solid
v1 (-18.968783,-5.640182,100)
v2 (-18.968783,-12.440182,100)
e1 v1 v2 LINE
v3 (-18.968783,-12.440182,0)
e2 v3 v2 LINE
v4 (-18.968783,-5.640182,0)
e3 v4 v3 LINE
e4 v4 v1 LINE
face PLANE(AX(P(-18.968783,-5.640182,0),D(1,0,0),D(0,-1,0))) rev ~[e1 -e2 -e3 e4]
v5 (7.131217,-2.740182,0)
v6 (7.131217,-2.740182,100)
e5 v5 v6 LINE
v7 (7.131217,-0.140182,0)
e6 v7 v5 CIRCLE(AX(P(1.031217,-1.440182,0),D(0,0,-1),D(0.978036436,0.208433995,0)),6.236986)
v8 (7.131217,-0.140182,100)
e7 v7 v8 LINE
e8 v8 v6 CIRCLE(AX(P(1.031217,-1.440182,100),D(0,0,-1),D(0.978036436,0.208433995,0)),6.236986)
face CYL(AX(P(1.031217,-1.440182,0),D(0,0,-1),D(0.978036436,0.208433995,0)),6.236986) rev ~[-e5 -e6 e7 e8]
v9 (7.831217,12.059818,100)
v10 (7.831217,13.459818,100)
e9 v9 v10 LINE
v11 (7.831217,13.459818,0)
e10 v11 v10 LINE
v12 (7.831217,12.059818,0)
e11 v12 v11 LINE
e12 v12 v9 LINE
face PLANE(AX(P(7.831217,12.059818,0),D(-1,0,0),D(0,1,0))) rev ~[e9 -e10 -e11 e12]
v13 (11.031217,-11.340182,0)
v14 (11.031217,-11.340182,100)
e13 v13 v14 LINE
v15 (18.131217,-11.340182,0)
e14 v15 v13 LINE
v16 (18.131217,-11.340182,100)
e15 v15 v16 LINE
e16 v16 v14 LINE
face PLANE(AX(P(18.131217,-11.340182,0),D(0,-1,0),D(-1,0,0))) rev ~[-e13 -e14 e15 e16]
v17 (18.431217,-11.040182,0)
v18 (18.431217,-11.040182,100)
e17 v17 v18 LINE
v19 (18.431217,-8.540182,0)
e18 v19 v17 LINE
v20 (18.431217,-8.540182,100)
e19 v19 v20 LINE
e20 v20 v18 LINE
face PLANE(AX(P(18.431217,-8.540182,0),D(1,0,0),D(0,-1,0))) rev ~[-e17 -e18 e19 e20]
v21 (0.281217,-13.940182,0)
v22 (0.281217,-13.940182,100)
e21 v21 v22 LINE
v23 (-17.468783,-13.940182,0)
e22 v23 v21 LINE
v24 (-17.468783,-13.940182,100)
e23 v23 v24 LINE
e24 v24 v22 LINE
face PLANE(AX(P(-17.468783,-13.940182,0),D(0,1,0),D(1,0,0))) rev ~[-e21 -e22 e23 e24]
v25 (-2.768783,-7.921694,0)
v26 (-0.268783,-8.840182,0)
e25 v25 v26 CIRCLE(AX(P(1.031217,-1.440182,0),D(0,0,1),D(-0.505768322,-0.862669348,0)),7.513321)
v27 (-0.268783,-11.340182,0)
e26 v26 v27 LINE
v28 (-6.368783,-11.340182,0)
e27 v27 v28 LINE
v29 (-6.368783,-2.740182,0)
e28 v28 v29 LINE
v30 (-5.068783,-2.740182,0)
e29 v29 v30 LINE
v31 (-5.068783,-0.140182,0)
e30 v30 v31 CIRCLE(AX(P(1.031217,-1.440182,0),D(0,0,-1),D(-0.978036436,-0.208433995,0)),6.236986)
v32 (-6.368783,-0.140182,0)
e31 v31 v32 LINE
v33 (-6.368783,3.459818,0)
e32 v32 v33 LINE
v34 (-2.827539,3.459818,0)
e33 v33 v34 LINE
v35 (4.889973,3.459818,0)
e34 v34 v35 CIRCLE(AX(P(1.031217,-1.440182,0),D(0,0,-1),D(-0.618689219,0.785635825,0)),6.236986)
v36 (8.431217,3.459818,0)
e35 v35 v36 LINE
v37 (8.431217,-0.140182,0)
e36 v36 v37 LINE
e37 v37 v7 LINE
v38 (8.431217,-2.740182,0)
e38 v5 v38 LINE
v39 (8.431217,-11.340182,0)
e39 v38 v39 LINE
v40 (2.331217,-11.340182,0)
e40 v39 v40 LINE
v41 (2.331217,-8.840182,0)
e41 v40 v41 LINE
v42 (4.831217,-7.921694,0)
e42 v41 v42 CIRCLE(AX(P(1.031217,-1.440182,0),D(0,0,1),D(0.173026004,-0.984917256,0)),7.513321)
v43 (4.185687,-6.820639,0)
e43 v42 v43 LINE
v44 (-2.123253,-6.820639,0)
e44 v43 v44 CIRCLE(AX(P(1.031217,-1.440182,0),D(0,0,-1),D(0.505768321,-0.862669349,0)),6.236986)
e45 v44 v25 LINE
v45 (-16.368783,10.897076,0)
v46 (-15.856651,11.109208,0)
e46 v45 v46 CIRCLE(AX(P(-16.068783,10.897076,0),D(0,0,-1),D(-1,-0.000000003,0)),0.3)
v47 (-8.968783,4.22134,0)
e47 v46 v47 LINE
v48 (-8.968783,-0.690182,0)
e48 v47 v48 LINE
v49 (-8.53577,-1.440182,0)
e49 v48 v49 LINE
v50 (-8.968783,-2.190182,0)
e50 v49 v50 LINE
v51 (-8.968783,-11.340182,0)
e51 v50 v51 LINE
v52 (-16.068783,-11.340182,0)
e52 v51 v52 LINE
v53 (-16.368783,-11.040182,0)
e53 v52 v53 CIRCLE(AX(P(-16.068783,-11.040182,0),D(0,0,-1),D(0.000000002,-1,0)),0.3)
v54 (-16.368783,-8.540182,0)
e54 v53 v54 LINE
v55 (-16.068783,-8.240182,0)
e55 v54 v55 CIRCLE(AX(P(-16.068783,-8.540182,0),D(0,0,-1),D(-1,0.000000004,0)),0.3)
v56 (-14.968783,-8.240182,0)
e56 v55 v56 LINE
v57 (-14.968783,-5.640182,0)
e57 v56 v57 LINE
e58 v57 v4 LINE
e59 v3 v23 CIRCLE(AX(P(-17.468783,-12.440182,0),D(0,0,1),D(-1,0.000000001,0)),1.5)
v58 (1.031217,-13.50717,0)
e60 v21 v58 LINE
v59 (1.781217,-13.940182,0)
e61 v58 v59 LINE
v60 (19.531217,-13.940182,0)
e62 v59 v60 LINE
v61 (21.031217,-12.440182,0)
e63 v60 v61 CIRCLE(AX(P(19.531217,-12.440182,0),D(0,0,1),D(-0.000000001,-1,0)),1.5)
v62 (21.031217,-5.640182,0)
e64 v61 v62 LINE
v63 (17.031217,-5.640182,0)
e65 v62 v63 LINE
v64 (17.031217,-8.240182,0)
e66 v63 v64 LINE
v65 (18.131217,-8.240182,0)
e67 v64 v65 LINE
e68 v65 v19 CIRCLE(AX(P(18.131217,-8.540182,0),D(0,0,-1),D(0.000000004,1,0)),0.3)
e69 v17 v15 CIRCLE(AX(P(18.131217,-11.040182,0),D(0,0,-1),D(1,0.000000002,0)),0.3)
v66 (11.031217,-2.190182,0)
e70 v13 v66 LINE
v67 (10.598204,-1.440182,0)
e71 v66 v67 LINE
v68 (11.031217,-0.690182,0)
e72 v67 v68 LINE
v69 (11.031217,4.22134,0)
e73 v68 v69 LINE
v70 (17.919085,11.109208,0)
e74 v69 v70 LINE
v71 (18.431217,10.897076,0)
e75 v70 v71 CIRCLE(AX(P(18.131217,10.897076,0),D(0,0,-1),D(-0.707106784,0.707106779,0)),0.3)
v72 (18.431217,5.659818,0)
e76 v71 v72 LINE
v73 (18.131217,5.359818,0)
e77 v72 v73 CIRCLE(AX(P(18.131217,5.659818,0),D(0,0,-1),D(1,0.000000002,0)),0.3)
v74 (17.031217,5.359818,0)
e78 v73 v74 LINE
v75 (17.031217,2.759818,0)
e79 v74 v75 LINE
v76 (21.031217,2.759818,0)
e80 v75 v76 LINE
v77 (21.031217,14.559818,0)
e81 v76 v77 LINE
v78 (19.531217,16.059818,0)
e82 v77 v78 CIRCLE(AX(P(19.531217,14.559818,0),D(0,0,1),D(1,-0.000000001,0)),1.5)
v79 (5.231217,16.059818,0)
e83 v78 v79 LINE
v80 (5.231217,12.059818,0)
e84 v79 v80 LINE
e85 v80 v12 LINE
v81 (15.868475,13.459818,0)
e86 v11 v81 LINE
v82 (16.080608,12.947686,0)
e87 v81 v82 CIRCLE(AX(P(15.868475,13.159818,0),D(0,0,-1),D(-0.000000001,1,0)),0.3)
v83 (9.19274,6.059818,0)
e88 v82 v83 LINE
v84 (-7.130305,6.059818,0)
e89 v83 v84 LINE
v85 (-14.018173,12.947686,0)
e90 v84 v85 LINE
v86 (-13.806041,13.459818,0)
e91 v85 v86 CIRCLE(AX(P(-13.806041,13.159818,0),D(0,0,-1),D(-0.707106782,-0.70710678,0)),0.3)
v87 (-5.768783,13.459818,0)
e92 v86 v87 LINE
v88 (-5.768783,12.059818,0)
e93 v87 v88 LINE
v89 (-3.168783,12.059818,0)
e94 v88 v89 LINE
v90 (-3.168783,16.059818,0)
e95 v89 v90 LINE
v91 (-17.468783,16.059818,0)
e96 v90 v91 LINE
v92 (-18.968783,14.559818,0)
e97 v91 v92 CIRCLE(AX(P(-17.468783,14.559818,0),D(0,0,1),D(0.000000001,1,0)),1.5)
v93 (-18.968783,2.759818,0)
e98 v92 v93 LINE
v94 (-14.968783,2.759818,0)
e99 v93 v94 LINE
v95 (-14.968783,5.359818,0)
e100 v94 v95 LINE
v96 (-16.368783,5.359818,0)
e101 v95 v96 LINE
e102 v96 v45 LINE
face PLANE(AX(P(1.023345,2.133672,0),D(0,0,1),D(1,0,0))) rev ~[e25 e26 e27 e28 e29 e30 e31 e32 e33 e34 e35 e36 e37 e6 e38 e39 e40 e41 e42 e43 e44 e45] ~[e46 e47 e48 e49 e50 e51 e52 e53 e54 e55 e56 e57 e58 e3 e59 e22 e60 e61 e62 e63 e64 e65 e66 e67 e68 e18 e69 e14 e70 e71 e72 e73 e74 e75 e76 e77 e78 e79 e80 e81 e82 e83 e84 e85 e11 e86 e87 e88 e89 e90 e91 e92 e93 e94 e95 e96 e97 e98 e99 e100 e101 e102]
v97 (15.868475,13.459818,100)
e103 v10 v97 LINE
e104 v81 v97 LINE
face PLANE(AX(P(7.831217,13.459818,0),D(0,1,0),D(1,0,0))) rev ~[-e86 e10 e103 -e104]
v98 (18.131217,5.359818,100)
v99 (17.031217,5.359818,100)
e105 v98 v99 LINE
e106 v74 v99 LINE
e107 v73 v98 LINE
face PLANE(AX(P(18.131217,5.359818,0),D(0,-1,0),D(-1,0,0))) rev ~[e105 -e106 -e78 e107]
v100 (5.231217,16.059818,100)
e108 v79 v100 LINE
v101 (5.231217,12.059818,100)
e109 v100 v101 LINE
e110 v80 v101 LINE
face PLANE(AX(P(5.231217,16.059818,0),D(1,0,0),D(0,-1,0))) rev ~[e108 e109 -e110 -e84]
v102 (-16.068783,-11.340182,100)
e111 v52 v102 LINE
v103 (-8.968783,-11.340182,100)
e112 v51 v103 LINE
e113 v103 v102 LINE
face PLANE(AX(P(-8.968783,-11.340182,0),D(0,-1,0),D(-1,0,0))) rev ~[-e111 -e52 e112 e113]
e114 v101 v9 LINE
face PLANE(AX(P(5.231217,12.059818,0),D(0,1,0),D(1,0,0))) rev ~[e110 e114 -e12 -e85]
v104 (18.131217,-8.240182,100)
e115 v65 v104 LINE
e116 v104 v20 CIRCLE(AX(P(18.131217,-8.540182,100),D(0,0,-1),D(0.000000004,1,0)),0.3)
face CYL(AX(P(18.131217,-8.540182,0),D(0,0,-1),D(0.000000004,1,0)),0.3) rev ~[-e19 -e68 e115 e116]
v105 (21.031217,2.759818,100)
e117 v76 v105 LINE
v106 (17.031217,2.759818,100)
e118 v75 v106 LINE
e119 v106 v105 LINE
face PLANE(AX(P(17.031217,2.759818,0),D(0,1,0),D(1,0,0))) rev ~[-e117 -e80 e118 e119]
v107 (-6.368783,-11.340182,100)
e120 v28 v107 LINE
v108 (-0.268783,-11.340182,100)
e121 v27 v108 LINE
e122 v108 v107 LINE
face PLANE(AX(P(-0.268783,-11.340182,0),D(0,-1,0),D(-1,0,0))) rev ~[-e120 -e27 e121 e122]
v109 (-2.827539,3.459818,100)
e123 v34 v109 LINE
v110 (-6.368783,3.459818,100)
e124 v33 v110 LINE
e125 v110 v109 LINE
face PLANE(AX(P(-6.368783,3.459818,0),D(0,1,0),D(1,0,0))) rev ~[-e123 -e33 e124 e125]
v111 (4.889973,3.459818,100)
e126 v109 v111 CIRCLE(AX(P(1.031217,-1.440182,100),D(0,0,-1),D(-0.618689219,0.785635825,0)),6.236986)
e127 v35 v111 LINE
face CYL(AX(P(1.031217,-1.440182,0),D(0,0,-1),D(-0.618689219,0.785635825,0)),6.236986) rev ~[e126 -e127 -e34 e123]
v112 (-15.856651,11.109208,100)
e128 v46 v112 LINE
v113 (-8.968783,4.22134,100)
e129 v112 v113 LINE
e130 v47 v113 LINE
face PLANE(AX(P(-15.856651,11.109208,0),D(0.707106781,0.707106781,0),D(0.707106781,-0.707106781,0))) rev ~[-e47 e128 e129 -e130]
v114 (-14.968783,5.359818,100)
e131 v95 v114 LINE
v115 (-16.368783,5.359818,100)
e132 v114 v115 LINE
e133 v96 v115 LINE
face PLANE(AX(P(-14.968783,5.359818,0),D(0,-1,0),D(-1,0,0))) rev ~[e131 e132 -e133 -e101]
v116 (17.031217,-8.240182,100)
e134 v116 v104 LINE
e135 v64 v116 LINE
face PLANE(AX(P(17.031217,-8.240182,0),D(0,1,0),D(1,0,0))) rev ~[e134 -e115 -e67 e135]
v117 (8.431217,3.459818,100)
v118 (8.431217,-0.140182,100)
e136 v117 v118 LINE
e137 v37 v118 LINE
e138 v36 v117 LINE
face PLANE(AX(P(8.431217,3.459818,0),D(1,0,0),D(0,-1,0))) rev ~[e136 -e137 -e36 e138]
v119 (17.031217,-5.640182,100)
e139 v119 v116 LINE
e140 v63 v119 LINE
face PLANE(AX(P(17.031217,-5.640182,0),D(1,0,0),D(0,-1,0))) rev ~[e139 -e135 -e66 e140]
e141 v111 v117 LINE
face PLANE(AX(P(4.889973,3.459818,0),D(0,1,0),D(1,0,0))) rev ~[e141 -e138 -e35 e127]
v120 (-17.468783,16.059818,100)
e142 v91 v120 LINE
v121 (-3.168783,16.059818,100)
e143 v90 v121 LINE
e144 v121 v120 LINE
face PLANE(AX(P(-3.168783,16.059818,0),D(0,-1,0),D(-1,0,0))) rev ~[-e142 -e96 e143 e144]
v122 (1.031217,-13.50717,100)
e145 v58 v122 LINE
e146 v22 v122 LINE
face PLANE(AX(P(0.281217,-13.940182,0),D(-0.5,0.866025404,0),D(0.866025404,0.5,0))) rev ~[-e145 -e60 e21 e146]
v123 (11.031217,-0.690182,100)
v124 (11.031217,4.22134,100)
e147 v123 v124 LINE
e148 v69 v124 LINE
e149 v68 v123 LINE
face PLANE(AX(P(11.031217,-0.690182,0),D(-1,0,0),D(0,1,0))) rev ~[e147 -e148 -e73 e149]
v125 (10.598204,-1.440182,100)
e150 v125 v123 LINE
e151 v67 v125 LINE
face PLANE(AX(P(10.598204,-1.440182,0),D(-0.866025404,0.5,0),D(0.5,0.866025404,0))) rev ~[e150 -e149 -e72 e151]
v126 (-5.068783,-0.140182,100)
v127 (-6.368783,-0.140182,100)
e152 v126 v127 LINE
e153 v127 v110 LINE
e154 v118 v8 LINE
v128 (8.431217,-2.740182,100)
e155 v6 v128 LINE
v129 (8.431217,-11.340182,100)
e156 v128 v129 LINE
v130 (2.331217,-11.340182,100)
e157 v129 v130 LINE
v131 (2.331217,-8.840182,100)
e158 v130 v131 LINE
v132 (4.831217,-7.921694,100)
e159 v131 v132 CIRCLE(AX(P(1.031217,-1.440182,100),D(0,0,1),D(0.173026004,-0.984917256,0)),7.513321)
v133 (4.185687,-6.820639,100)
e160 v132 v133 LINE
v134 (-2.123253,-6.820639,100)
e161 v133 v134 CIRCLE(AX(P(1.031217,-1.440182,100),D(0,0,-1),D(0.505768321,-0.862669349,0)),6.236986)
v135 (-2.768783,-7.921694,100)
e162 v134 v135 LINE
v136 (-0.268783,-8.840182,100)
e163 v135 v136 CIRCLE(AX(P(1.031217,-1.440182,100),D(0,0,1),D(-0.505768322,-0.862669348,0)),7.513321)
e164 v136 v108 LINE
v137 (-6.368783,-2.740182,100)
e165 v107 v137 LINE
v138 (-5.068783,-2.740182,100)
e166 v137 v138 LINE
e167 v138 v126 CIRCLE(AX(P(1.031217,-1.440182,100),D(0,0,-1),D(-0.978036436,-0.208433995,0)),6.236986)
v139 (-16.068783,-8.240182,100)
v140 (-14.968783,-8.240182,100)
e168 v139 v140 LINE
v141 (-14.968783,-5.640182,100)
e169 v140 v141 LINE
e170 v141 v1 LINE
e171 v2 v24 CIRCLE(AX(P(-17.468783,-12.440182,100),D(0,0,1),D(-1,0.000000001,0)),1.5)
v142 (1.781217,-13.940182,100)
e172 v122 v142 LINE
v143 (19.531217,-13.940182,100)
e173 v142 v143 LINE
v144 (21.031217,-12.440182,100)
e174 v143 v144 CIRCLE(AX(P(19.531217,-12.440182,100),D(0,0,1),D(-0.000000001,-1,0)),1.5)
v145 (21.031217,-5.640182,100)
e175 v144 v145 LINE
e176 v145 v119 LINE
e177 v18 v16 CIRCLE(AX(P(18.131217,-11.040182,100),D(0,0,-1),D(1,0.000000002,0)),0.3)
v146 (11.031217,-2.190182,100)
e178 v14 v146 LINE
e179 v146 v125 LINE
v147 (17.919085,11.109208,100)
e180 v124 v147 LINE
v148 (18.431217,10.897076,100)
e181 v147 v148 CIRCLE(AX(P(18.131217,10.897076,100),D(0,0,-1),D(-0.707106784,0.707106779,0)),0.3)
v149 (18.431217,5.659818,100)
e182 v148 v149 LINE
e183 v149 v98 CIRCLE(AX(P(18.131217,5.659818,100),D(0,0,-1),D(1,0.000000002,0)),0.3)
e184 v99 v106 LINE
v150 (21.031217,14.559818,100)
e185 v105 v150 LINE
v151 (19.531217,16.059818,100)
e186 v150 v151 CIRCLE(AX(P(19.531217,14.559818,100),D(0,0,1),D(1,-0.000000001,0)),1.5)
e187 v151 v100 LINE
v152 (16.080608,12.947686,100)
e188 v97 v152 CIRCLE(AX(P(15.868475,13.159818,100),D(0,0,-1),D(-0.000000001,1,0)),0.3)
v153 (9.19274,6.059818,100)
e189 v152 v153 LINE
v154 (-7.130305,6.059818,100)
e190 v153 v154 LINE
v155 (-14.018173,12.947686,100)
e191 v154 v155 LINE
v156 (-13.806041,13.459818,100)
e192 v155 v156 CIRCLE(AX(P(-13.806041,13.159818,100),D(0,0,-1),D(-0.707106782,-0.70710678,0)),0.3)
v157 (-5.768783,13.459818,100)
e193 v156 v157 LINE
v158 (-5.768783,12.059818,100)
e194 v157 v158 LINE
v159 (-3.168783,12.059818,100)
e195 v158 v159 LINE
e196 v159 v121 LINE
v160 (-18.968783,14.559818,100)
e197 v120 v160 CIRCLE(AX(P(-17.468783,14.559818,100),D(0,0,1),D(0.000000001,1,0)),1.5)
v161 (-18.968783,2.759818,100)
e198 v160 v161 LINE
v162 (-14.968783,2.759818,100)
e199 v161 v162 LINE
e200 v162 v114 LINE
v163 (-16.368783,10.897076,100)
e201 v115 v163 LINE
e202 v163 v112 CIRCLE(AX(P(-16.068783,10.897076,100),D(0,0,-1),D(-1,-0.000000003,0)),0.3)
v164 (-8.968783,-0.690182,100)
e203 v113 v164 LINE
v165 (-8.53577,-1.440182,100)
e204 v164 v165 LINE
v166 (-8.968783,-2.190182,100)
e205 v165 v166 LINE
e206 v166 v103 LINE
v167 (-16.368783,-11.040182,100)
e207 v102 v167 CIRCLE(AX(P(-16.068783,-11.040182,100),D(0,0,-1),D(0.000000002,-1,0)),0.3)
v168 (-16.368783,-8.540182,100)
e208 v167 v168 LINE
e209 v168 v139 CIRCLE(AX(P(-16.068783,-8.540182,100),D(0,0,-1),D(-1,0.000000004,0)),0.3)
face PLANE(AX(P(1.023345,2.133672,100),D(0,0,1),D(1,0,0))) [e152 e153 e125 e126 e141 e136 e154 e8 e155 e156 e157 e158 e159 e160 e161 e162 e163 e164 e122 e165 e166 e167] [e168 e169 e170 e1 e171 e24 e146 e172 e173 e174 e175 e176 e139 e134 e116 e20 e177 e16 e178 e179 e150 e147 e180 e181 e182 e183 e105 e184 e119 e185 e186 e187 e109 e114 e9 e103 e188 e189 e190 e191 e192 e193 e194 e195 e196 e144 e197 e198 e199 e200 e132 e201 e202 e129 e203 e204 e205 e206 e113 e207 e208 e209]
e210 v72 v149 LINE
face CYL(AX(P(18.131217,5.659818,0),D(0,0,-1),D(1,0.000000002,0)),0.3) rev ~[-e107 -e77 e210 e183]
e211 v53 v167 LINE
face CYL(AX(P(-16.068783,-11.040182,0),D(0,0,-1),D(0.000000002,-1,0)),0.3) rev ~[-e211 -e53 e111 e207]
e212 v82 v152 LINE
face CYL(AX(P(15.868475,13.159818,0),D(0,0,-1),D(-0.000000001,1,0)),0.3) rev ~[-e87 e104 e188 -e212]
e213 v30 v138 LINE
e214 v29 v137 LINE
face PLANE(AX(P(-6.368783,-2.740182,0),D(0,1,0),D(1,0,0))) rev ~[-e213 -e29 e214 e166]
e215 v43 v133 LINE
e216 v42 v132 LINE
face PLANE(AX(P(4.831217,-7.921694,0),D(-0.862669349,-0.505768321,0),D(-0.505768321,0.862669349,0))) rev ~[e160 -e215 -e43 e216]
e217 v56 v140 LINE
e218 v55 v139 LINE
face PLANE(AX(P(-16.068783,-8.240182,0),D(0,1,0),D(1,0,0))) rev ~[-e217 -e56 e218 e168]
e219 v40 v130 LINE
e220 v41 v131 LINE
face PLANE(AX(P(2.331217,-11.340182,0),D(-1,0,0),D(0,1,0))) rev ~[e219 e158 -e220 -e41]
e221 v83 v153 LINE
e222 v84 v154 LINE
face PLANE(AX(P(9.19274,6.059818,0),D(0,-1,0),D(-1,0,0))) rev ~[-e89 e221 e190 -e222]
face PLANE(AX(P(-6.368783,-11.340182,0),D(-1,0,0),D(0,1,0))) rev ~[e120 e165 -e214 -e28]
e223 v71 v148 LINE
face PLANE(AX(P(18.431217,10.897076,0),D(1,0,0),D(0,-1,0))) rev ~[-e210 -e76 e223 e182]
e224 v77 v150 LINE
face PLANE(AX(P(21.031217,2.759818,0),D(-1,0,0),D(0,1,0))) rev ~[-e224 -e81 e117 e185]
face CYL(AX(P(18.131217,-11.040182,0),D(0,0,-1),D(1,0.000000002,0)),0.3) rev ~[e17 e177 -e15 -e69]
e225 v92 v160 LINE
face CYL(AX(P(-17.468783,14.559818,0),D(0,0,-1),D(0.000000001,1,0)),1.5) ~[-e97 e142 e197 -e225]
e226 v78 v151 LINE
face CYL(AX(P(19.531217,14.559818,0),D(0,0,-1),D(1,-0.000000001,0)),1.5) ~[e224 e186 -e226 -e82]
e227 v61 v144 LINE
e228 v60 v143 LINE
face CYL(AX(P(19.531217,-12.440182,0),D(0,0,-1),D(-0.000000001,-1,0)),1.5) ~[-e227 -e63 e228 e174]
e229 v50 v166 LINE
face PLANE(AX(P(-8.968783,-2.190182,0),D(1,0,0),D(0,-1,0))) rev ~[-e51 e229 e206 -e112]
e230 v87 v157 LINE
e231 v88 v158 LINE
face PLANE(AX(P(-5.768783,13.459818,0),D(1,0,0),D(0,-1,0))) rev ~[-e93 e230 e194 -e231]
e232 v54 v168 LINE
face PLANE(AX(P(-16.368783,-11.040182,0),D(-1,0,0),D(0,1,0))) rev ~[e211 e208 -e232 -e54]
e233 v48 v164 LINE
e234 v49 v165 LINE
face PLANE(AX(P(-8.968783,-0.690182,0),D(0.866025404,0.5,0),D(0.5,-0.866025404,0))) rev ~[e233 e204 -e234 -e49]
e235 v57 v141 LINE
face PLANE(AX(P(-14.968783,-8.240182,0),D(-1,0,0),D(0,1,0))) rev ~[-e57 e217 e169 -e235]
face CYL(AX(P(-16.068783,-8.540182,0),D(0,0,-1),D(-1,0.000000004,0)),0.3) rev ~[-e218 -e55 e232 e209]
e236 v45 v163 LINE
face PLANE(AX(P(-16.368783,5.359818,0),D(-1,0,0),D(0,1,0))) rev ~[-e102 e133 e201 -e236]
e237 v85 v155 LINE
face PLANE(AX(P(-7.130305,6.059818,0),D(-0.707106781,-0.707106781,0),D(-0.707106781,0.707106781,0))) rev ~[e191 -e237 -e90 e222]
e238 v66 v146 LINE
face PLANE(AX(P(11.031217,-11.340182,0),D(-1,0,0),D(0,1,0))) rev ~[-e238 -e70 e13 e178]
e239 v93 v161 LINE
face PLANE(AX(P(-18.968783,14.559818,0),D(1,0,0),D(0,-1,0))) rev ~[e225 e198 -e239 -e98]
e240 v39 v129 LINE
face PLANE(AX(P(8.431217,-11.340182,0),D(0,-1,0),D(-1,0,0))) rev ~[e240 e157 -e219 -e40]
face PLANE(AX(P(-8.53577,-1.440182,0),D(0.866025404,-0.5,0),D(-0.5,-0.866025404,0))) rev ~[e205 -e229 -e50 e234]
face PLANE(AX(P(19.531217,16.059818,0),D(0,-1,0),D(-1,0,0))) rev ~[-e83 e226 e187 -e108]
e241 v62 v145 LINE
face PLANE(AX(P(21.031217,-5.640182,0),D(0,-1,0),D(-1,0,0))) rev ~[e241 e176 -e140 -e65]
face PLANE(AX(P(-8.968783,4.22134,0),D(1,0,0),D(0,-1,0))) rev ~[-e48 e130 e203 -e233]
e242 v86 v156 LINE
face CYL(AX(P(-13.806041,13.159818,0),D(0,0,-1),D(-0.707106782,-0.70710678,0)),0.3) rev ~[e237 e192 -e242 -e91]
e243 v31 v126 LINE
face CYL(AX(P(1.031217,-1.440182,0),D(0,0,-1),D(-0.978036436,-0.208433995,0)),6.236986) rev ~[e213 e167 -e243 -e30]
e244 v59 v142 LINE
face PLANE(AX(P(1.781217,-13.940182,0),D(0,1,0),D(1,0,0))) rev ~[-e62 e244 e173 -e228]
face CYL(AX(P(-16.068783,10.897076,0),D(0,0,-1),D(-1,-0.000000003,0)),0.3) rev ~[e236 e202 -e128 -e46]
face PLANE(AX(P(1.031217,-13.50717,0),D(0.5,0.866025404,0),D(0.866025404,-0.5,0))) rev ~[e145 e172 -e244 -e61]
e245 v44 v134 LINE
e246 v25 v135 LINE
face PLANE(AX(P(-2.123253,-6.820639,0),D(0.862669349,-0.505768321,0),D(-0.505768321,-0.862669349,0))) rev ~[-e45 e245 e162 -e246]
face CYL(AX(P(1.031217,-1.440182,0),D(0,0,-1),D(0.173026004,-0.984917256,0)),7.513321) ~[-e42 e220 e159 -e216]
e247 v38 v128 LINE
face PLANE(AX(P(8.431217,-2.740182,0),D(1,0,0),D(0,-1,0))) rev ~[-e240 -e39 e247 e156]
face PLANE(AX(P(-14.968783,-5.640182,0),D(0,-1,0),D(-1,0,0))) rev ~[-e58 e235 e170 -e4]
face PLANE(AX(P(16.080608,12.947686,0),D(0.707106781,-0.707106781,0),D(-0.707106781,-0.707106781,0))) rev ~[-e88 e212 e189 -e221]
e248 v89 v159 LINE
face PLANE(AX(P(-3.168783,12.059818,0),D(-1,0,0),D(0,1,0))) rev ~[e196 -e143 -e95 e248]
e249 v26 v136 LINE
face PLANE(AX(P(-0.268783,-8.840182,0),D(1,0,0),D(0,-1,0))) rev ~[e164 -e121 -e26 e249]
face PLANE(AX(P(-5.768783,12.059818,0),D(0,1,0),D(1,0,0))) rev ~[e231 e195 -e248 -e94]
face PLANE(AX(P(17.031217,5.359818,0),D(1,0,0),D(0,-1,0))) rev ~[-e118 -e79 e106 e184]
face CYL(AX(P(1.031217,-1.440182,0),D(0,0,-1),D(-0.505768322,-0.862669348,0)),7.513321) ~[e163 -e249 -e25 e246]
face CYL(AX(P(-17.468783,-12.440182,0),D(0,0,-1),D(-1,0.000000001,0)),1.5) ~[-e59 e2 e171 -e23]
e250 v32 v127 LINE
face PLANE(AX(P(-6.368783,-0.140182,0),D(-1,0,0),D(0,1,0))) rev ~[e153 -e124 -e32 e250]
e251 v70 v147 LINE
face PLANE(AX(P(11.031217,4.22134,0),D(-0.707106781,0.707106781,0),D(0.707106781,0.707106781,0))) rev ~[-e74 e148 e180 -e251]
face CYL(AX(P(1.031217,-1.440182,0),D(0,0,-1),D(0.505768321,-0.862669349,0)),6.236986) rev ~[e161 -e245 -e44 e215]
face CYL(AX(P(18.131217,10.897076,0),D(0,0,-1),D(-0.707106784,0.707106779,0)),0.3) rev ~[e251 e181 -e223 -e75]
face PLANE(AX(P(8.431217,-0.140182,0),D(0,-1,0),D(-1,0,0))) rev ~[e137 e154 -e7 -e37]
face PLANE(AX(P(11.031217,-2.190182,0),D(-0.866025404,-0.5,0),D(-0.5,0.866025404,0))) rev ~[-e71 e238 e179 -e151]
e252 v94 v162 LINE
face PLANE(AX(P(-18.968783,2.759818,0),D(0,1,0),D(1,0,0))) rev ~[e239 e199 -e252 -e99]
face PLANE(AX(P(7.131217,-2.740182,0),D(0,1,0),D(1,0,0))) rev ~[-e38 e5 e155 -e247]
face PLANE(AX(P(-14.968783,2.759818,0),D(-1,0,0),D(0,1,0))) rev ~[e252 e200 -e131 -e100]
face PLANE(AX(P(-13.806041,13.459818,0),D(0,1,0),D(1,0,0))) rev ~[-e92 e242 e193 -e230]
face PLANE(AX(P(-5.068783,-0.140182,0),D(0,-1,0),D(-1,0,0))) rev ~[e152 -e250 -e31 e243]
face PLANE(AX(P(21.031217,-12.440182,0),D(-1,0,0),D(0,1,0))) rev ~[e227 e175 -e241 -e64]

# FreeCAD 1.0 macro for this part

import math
import FreeCAD as App
import Part
import Sketcher
from FreeCAD import Vector
Q = App.Units.Quantity

doc = App.newDocument("Part")
params = doc.addObject("Spreadsheet::Sheet", "Params")
for row, (alias, value) in enumerate([
    ("sketch1_radius", "1.5 mm"),
    ("sketch1_radius2", "0.3 mm"),
    ("sketch1_width", "4 mm"),
    ("sketch1_width2", "1.1 mm"),
    ("sketch1_width3", "7.1 mm"),
    ("pad1_length", "100 mm"),
], start=1):
    params.set(f"A{row}", alias)
    params.set(f"B{row}", "=" + value)
    params.setAlias(f"B{row}", alias)

body = doc.addObject("PartDesign::Body", "Body")

sketch1 = body.newObject("Sketcher::SketchObject", "Sketch")
sketch1.AttachmentSupport = (doc.getObject("XY_Plane"), [""])
sketch1.MapMode = "FlatFace"
sketch1.addGeometry([
    Part.LineSegment(Vector(-17.468783, -13.940182, 0), Vector(0.281217, -13.940182, 0)),
    Part.LineSegment(Vector(0.281217, -13.940182, 0), Vector(1.031217, -13.50717, 0)),
    Part.LineSegment(Vector(1.031217, -13.50717, 0), Vector(1.781217, -13.940182, 0)),
    Part.LineSegment(Vector(1.781217, -13.940182, 0), Vector(19.531217, -13.940182, 0)),
    Part.ArcOfCircle(Part.Circle(Vector(19.531217, -12.440182, 0), Vector(0, 0, 1), 1.5), math.radians(-90), math.radians(0)),
    Part.LineSegment(Vector(21.031217, -12.440182, 0), Vector(21.031217, -5.640182, 0)),
    Part.LineSegment(Vector(21.031217, -5.640182, 0), Vector(17.031217, -5.640182, 0)),
    Part.LineSegment(Vector(17.031217, -5.640182, 0), Vector(17.031217, -8.240182, 0)),
    Part.LineSegment(Vector(17.031217, -8.240182, 0), Vector(18.131217, -8.240182, 0)),
    Part.ArcOfCircle(Part.Circle(Vector(18.131217, -8.540182, 0), Vector(0, 0, 1), 0.3), math.radians(0), math.radians(90)),
    Part.LineSegment(Vector(18.431217, -8.540182, 0), Vector(18.431217, -11.040182, 0)),
    Part.ArcOfCircle(Part.Circle(Vector(18.131217, -11.040182, 0), Vector(0, 0, 1), 0.3), math.radians(-90), math.radians(0)),
    Part.LineSegment(Vector(18.131217, -11.340182, 0), Vector(11.031217, -11.340182, 0)),
    Part.LineSegment(Vector(11.031217, -11.340182, 0), Vector(11.031217, -2.190182, 0)),
    Part.LineSegment(Vector(11.031217, -2.190182, 0), Vector(10.598204, -1.440182, 0)),
    Part.LineSegment(Vector(10.598204, -1.440182, 0), Vector(11.031217, -0.690182, 0)),
    Part.LineSegment(Vector(11.031217, -0.690182, 0), Vector(11.031217, 4.22134, 0)),
    Part.LineSegment(Vector(11.031217, 4.22134, 0), Vector(17.919085, 11.109208, 0)),
    Part.ArcOfCircle(Part.Circle(Vector(18.131217, 10.897076, 0), Vector(0, 0, 1), 0.3), math.radians(0), math.radians(135)),
    Part.LineSegment(Vector(18.431217, 10.897076, 0), Vector(18.431217, 5.659818, 0)),
    Part.ArcOfCircle(Part.Circle(Vector(18.131217, 5.659818, 0), Vector(0, 0, 1), 0.3), math.radians(-90), math.radians(0)),
    Part.LineSegment(Vector(18.131217, 5.359818, 0), Vector(17.031217, 5.359818, 0)),
    Part.LineSegment(Vector(17.031217, 5.359818, 0), Vector(17.031217, 2.759818, 0)),
    Part.LineSegment(Vector(17.031217, 2.759818, 0), Vector(21.031217, 2.759818, 0)),
    Part.LineSegment(Vector(21.031217, 2.759818, 0), Vector(21.031217, 14.559818, 0)),
    Part.ArcOfCircle(Part.Circle(Vector(19.531217, 14.559818, 0), Vector(0, 0, 1), 1.5), math.radians(0), math.radians(90)),
    Part.LineSegment(Vector(19.531217, 16.059818, 0), Vector(5.231217, 16.059818, 0)),
    Part.LineSegment(Vector(5.231217, 16.059818, 0), Vector(5.231217, 12.059818, 0)),
    Part.LineSegment(Vector(5.231217, 12.059818, 0), Vector(7.831217, 12.059818, 0)),
    Part.LineSegment(Vector(7.831217, 12.059818, 0), Vector(7.831217, 13.459818, 0)),
    Part.LineSegment(Vector(7.831217, 13.459818, 0), Vector(15.868475, 13.459818, 0)),
    Part.ArcOfCircle(Part.Circle(Vector(15.868475, 13.159818, 0), Vector(0, 0, 1), 0.3), math.radians(-45), math.radians(90)),
    Part.LineSegment(Vector(16.080608, 12.947686, 0), Vector(9.19274, 6.059818, 0)),
    Part.LineSegment(Vector(9.19274, 6.059818, 0), Vector(-7.130305, 6.059818, 0)),
    Part.LineSegment(Vector(-7.130305, 6.059818, 0), Vector(-14.018173, 12.947686, 0)),
    Part.ArcOfCircle(Part.Circle(Vector(-13.806041, 13.159818, 0), Vector(0, 0, 1), 0.3), math.radians(90), math.radians(225)),
    Part.LineSegment(Vector(-13.806041, 13.459818, 0), Vector(-5.768783, 13.459818, 0)),
    Part.LineSegment(Vector(-5.768783, 13.459818, 0), Vector(-5.768783, 12.059818, 0)),
    Part.LineSegment(Vector(-5.768783, 12.059818, 0), Vector(-3.168783, 12.059818, 0)),
    Part.LineSegment(Vector(-3.168783, 12.059818, 0), Vector(-3.168783, 16.059818, 0)),
    Part.LineSegment(Vector(-3.168783, 16.059818, 0), Vector(-17.468783, 16.059818, 0)),
    Part.ArcOfCircle(Part.Circle(Vector(-17.468783, 14.559818, 0), Vector(0, 0, 1), 1.5), math.radians(90), math.radians(180)),
    Part.LineSegment(Vector(-18.968783, 14.559818, 0), Vector(-18.968783, 2.759818, 0)),
    Part.LineSegment(Vector(-18.968783, 2.759818, 0), Vector(-14.968783, 2.759818, 0)),
    Part.LineSegment(Vector(-14.968783, 2.759818, 0), Vector(-14.968783, 5.359818, 0)),
    Part.LineSegment(Vector(-14.968783, 5.359818, 0), Vector(-16.368783, 5.359818, 0)),
    Part.LineSegment(Vector(-16.368783, 5.359818, 0), Vector(-16.368783, 10.897076, 0)),
    Part.ArcOfCircle(Part.Circle(Vector(-16.068783, 10.897076, 0), Vector(0, 0, 1), 0.3), math.radians(45), math.radians(180)),
    Part.LineSegment(Vector(-15.856651, 11.109208, 0), Vector(-8.968783, 4.22134, 0)),
    Part.LineSegment(Vector(-8.968783, 4.22134, 0), Vector(-8.968783, -0.690182, 0)),
    Part.LineSegment(Vector(-8.968783, -0.690182, 0), Vector(-8.53577, -1.440182, 0)),
    Part.LineSegment(Vector(-8.53577, -1.440182, 0), Vector(-8.968783, -2.190182, 0)),
    Part.LineSegment(Vector(-8.968783, -2.190182, 0), Vector(-8.968783, -11.340182, 0)),
    Part.LineSegment(Vector(-8.968783, -11.340182, 0), Vector(-16.068783, -11.340182, 0)),
    Part.ArcOfCircle(Part.Circle(Vector(-16.068783, -11.040182, 0), Vector(0, 0, 1), 0.3), math.radians(180), math.radians(270)),
    Part.LineSegment(Vector(-16.368783, -11.040182, 0), Vector(-16.368783, -8.540182, 0)),
    Part.ArcOfCircle(Part.Circle(Vector(-16.068783, -8.540182, 0), Vector(0, 0, 1), 0.3), math.radians(90), math.radians(180)),
    Part.LineSegment(Vector(-16.068783, -8.240182, 0), Vector(-14.968783, -8.240182, 0)),
    Part.LineSegment(Vector(-14.968783, -8.240182, 0), Vector(-14.968783, -5.640182, 0)),
    Part.LineSegment(Vector(-14.968783, -5.640182, 0), Vector(-18.968783, -5.640182, 0)),
    Part.LineSegment(Vector(-18.968783, -5.640182, 0), Vector(-18.968783, -12.440182, 0)),
    Part.ArcOfCircle(Part.Circle(Vector(-17.468783, -12.440182, 0), Vector(0, 0, 1), 1.5), math.radians(180), math.radians(270)),
    Part.LineSegment(Vector(-6.368783, -0.140182, 0), Vector(-6.368783, 3.459818, 0)),
    Part.LineSegment(Vector(-6.368783, 3.459818, 0), Vector(-2.827539, 3.459818, 0)),
    Part.ArcOfCircle(Part.Circle(Vector(1.031217, -1.440182, 0), Vector(0, 0, 1), 6.236986), math.radians(51.779523), math.radians(128.220477)),
    Part.LineSegment(Vector(4.889973, 3.459818, 0), Vector(8.431217, 3.459818, 0)),
    Part.LineSegment(Vector(8.431217, 3.459818, 0), Vector(8.431217, -0.140182, 0)),
    Part.LineSegment(Vector(8.431217, -0.140182, 0), Vector(7.131217, -0.140182, 0)),
    Part.ArcOfCircle(Part.Circle(Vector(1.031217, -1.440182, 0), Vector(0, 0, 1), 6.236986), math.radians(-12.030596), math.radians(12.030596)),
    Part.LineSegment(Vector(7.131217, -2.740182, 0), Vector(8.431217, -2.740182, 0)),
    Part.LineSegment(Vector(8.431217, -2.740182, 0), Vector(8.431217, -11.340182, 0)),
    Part.LineSegment(Vector(8.431217, -11.340182, 0), Vector(2.331217, -11.340182, 0)),
    Part.LineSegment(Vector(2.331217, -11.340182, 0), Vector(2.331217, -8.840182, 0)),
    Part.ArcOfCircle(Part.Circle(Vector(1.031217, -1.440182, 0), Vector(0, 0, 1), 7.513321), math.radians(-80.036196), math.radians(-59.617631)),
    Part.LineSegment(Vector(4.831217, -7.921694, 0), Vector(4.185687, -6.820639, 0)),
    Part.ArcOfCircle(Part.Circle(Vector(1.031217, -1.440182, 0), Vector(0, 0, 1), 6.236986), math.radians(-120.382369), math.radians(-59.617631)),
    Part.LineSegment(Vector(-2.123253, -6.820639, 0), Vector(-2.768783, -7.921694, 0)),
    Part.ArcOfCircle(Part.Circle(Vector(1.031217, -1.440182, 0), Vector(0, 0, 1), 7.513321), math.radians(-120.382369), math.radians(-99.963804)),
    Part.LineSegment(Vector(-0.268783, -8.840182, 0), Vector(-0.268783, -11.340182, 0)),
    Part.LineSegment(Vector(-0.268783, -11.340182, 0), Vector(-6.368783, -11.340182, 0)),
    Part.LineSegment(Vector(-6.368783, -11.340182, 0), Vector(-6.368783, -2.740182, 0)),
    Part.LineSegment(Vector(-6.368783, -2.740182, 0), Vector(-5.068783, -2.740182, 0)),
    Part.ArcOfCircle(Part.Circle(Vector(1.031217, -1.440182, 0), Vector(0, 0, 1), 6.236986), math.radians(167.969404), math.radians(192.030596)),
    Part.LineSegment(Vector(-5.068783, -0.140182, 0), Vector(-6.368783, -0.140182, 0)),
], False)
sketch1.addConstraint([
    Sketcher.Constraint("Coincident", 0, 2, 1, 1),
    Sketcher.Constraint("Coincident", 1, 2, 2, 1),
    Sketcher.Constraint("Coincident", 2, 2, 3, 1),
    Sketcher.Constraint("Tangent", 3, 2, 4, 1),
    Sketcher.Constraint("Tangent", 4, 2, 5, 1),
    Sketcher.Constraint("Coincident", 5, 2, 6, 1),
    Sketcher.Constraint("Coincident", 6, 2, 7, 1),
    Sketcher.Constraint("Coincident", 7, 2, 8, 1),
    Sketcher.Constraint("Tangent", 8, 2, 9, 2),
    Sketcher.Constraint("Tangent", 9, 1, 10, 1),
    Sketcher.Constraint("Tangent", 10, 2, 11, 2),
    Sketcher.Constraint("Tangent", 11, 1, 12, 1),
    Sketcher.Constraint("Coincident", 12, 2, 13, 1),
    Sketcher.Constraint("Coincident", 13, 2, 14, 1),
    Sketcher.Constraint("Coincident", 14, 2, 15, 1),
    Sketcher.Constraint("Coincident", 15, 2, 16, 1),
    Sketcher.Constraint("Coincident", 16, 2, 17, 1),
    Sketcher.Constraint("Tangent", 17, 2, 18, 2),
    Sketcher.Constraint("Tangent", 18, 1, 19, 1),
    Sketcher.Constraint("Tangent", 19, 2, 20, 2),
    Sketcher.Constraint("Tangent", 20, 1, 21, 1),
    Sketcher.Constraint("Coincident", 21, 2, 22, 1),
    Sketcher.Constraint("Coincident", 22, 2, 23, 1),
    Sketcher.Constraint("Coincident", 23, 2, 24, 1),
    Sketcher.Constraint("Tangent", 24, 2, 25, 1),
    Sketcher.Constraint("Tangent", 25, 2, 26, 1),
    Sketcher.Constraint("Coincident", 26, 2, 27, 1),
    Sketcher.Constraint("Coincident", 27, 2, 28, 1),
    Sketcher.Constraint("Coincident", 28, 2, 29, 1),
    Sketcher.Constraint("Coincident", 29, 2, 30, 1),
    Sketcher.Constraint("Tangent", 30, 2, 31, 2),
    Sketcher.Constraint("Tangent", 31, 1, 32, 1),
    Sketcher.Constraint("Coincident", 32, 2, 33, 1),
    Sketcher.Constraint("Coincident", 33, 2, 34, 1),
    Sketcher.Constraint("Tangent", 34, 2, 35, 2),
    Sketcher.Constraint("Tangent", 35, 1, 36, 1),
    Sketcher.Constraint("Coincident", 36, 2, 37, 1),
    Sketcher.Constraint("Coincident", 37, 2, 38, 1),
    Sketcher.Constraint("Coincident", 38, 2, 39, 1),
    Sketcher.Constraint("Coincident", 39, 2, 40, 1),
    Sketcher.Constraint("Tangent", 40, 2, 41, 1),
    Sketcher.Constraint("Tangent", 41, 2, 42, 1),
    Sketcher.Constraint("Coincident", 42, 2, 43, 1),
    Sketcher.Constraint("Coincident", 43, 2, 44, 1),
    Sketcher.Constraint("Coincident", 44, 2, 45, 1),
    Sketcher.Constraint("Coincident", 45, 2, 46, 1),
    Sketcher.Constraint("Tangent", 46, 2, 47, 2),
    Sketcher.Constraint("Tangent", 47, 1, 48, 1),
    Sketcher.Constraint("Coincident", 48, 2, 49, 1),
    Sketcher.Constraint("Coincident", 49, 2, 50, 1),
    Sketcher.Constraint("Coincident", 50, 2, 51, 1),
    Sketcher.Constraint("Coincident", 51, 2, 52, 1),
    Sketcher.Constraint("Coincident", 52, 2, 53, 1),
    Sketcher.Constraint("Tangent", 53, 2, 54, 2),
    Sketcher.Constraint("Tangent", 54, 1, 55, 1),
    Sketcher.Constraint("Tangent", 55, 2, 56, 2),
    Sketcher.Constraint("Tangent", 56, 1, 57, 1),
    Sketcher.Constraint("Coincident", 57, 2, 58, 1),
    Sketcher.Constraint("Coincident", 58, 2, 59, 1),
    Sketcher.Constraint("Coincident", 59, 2, 60, 1),
    Sketcher.Constraint("Tangent", 60, 2, 61, 1),
    Sketcher.Constraint("Tangent", 61, 2, 0, 1),
    Sketcher.Constraint("Coincident", 62, 2, 63, 1),
    Sketcher.Constraint("Coincident", 63, 2, 64, 2),
    Sketcher.Constraint("Coincident", 64, 1, 65, 1),
    Sketcher.Constraint("Coincident", 65, 2, 66, 1),
    Sketcher.Constraint("Coincident", 66, 2, 67, 1),
    Sketcher.Constraint("Coincident", 67, 2, 68, 2),
    Sketcher.Constraint("Coincident", 68, 1, 69, 1),
    Sketcher.Constraint("Coincident", 69, 2, 70, 1),
    Sketcher.Constraint("Coincident", 70, 2, 71, 1),
    Sketcher.Constraint("Coincident", 71, 2, 72, 1),
    Sketcher.Constraint("Coincident", 72, 2, 73, 1),
    Sketcher.Constraint("Coincident", 73, 2, 74, 1),
    Sketcher.Constraint("Coincident", 74, 2, 75, 2),
    Sketcher.Constraint("Coincident", 75, 1, 76, 1),
    Sketcher.Constraint("Coincident", 76, 2, 77, 1),
    Sketcher.Constraint("Coincident", 77, 2, 78, 1),
    Sketcher.Constraint("Coincident", 78, 2, 79, 1),
    Sketcher.Constraint("Coincident", 79, 2, 80, 1),
    Sketcher.Constraint("Coincident", 80, 2, 81, 1),
    Sketcher.Constraint("Coincident", 81, 2, 82, 2),
    Sketcher.Constraint("Coincident", 82, 1, 83, 1),
    Sketcher.Constraint("Coincident", 83, 2, 62, 1),
    Sketcher.Constraint("Horizontal", 0),
    Sketcher.Constraint("Horizontal", 3),
    Sketcher.Constraint("Vertical", 5),
    Sketcher.Constraint("Horizontal", 6),
    Sketcher.Constraint("Vertical", 7),
    Sketcher.Constraint("Horizontal", 8),
    Sketcher.Constraint("Vertical", 10),
    Sketcher.Constraint("Horizontal", 12),
    Sketcher.Constraint("Vertical", 13),
    Sketcher.Constraint("Vertical", 16),
    Sketcher.Constraint("Vertical", 19),
    Sketcher.Constraint("Horizontal", 21),
    Sketcher.Constraint("Vertical", 22),
    Sketcher.Constraint("Horizontal", 23),
    Sketcher.Constraint("Vertical", 24),
    Sketcher.Constraint("Horizontal", 26),
    Sketcher.Constraint("Vertical", 27),
    Sketcher.Constraint("Horizontal", 28),
    Sketcher.Constraint("Vertical", 29),
    Sketcher.Constraint("Horizontal", 30),
    Sketcher.Constraint("Horizontal", 33),
    Sketcher.Constraint("Horizontal", 36),
    Sketcher.Constraint("Vertical", 37),
    Sketcher.Constraint("Horizontal", 38),
    Sketcher.Constraint("Vertical", 39),
    Sketcher.Constraint("Horizontal", 40),
    Sketcher.Constraint("Vertical", 42),
    Sketcher.Constraint("Horizontal", 43),
    Sketcher.Constraint("Vertical", 44),
    Sketcher.Constraint("Horizontal", 45),
    Sketcher.Constraint("Vertical", 46),
    Sketcher.Constraint("Vertical", 49),
    Sketcher.Constraint("Vertical", 52),
    Sketcher.Constraint("Horizontal", 53),
    Sketcher.Constraint("Vertical", 55),
    Sketcher.Constraint("Horizontal", 57),
    Sketcher.Constraint("Vertical", 58),
    Sketcher.Constraint("Horizontal", 59),
    Sketcher.Constraint("Vertical", 60),
    Sketcher.Constraint("Vertical", 62),
    Sketcher.Constraint("Horizontal", 63),
    Sketcher.Constraint("Horizontal", 65),
    Sketcher.Constraint("Vertical", 66),
    Sketcher.Constraint("Horizontal", 67),
    Sketcher.Constraint("Horizontal", 69),
    Sketcher.Constraint("Vertical", 70),
    Sketcher.Constraint("Horizontal", 71),
    Sketcher.Constraint("Vertical", 72),
    Sketcher.Constraint("Vertical", 78),
    Sketcher.Constraint("Horizontal", 79),
    Sketcher.Constraint("Vertical", 80),
    Sketcher.Constraint("Horizontal", 81),
    Sketcher.Constraint("Horizontal", 83),
    Sketcher.Constraint("Coincident", 68, 3, 64, 3),
    Sketcher.Constraint("Coincident", 73, 3, 64, 3),
    Sketcher.Constraint("Coincident", 75, 3, 64, 3),
    Sketcher.Constraint("Coincident", 77, 3, 64, 3),
    Sketcher.Constraint("Coincident", 82, 3, 64, 3),
    Sketcher.Constraint("Equal", 9, 11),
    Sketcher.Constraint("Equal", 11, 18),
    Sketcher.Constraint("Equal", 18, 20),
    Sketcher.Constraint("Equal", 4, 25),
    Sketcher.Constraint("Equal", 20, 31),
    Sketcher.Constraint("Equal", 31, 35),
    Sketcher.Constraint("Equal", 25, 41),
    Sketcher.Constraint("Equal", 35, 47),
    Sketcher.Constraint("Equal", 47, 54),
    Sketcher.Constraint("Equal", 54, 56),
    Sketcher.Constraint("Equal", 41, 61),
    Sketcher.Constraint("Equal", 64, 68),
    Sketcher.Constraint("Equal", 68, 75),
    Sketcher.Constraint("Equal", 73, 77),
    Sketcher.Constraint("Equal", 75, 82),
    Sketcher.Constraint("Perpendicular", 1, 14),
    Sketcher.Constraint("Perpendicular", 2, 15),
    Sketcher.Constraint("Parallel", 17, 32),
    Sketcher.Constraint("Perpendicular", 32, 34),
    Sketcher.Constraint("Parallel", 34, 48),
    Sketcher.Constraint("Parallel", 14, 50),
    Sketcher.Constraint("Parallel", 15, 51),
    Sketcher.Constraint("Horizontal", 31, 3, 35, 3),
    Sketcher.Constraint("Horizontal", 25, 3, 41, 3),
    Sketcher.Constraint("Horizontal", 18, 3, 47, 3),
    Sketcher.Constraint("Horizontal", 11, 3, 54, 3),
    Sketcher.Constraint("Horizontal", 9, 3, 56, 3),
    Sketcher.Constraint("Horizontal", 4, 3, 61, 3),
    Sketcher.Constraint("Horizontal", 82, 3, 14, 2),
    Sketcher.Constraint("Horizontal", 31, 1, 34, 2),
    Sketcher.Constraint("Horizontal", 28, 2, 37, 2),
    Sketcher.Constraint("Horizontal", 23, 2, 42, 2),
    Sketcher.Constraint("Horizontal", 21, 2, 44, 2),
    Sketcher.Constraint("Horizontal", 16, 2, 48, 2),
    Sketcher.Constraint("Horizontal", 15, 2, 49, 2),
    Sketcher.Constraint("Horizontal", 14, 2, 50, 2),
    Sketcher.Constraint("Horizontal", 13, 2, 51, 2),
    Sketcher.Constraint("Horizontal", 6, 2, 58, 2),
    Sketcher.Constraint("Horizontal", 63, 2, 64, 1),
    Sketcher.Constraint("Horizontal", 53, 2, 70, 2),
    Sketcher.Constraint("Horizontal", 74, 2, 75, 1),
    Sketcher.Constraint("Horizontal", 73, 2, 76, 2),
    Sketcher.Constraint("Horizontal", 72, 2, 77, 2),
    Sketcher.Constraint("Horizontal", 71, 2, 78, 2),
    Sketcher.Constraint("Horizontal", 69, 2, 80, 2),
    Sketcher.Constraint("Horizontal", 67, 2, 82, 1),
    Sketcher.Constraint("Vertical", 11, 3, 18, 3),
    Sketcher.Constraint("Vertical", 4, 3, 25, 3),
    Sketcher.Constraint("Vertical", 47, 3, 54, 3),
    Sketcher.Constraint("Vertical", 41, 3, 61, 3),
    Sketcher.Constraint("Vertical", 82, 3, 1, 2),
    Sketcher.Constraint("Vertical", 13, 2, 15, 2),
    Sketcher.Constraint("Vertical", 7, 2, 21, 2),
    Sketcher.Constraint("Vertical", 49, 2, 51, 2),
    Sketcher.Constraint("Vertical", 44, 2, 57, 2),
    Sketcher.Constraint("Vertical", 67, 2, 68, 1),
    Sketcher.Constraint("Vertical", 66, 2, 69, 2),
    Sketcher.Constraint("Vertical", 62, 2, 79, 2),
    Sketcher.Constraint("Equal", 0, 3),
    Sketcher.Constraint("Equal", 30, 36),
    Sketcher.Constraint("Equal", 28, 38),
    Sketcher.Constraint("Equal", 26, 40),
    Sketcher.Constraint("Equal", 23, 43),
    Sketcher.Constraint("Equal", 21, 57),
    Sketcher.Constraint("Equal", 63, 65),
    Sketcher.Constraint("Equal", 38, 7),
    Sketcher.Constraint("Equal", 7, 22),
    Sketcher.Constraint("Equal", 59, 27),
    Sketcher.Constraint("Equal", 45, 29),
    Sketcher.Constraint("Equal", 55, 72),
    Sketcher.Constraint("Equal", 2, 14),
    Sketcher.Constraint("Equal", 17, 32),
    Sketcher.Constraint("Radius", 4, 1.5),
    Sketcher.Constraint("Radius", 9, 0.3),
    Sketcher.Constraint("DistanceX", 6, 2, 6, 1, 4.0),
    Sketcher.Constraint("Angle", 1, Q("30 deg")),
    Sketcher.Constraint("DistanceX", 8, 1, 8, 2, 1.1),
    Sketcher.Constraint("DistanceX", 12, 2, 12, 1, 7.1),
    Sketcher.Constraint("DistanceX", 26, 2, 26, 1, 14.3),
    Sketcher.Constraint("DistanceX", 28, 1, 28, 2, 2.6),
    Sketcher.Constraint("DistanceX", 67, 2, 67, 1, 1.3),
    Sketcher.Constraint("DistanceX", 71, 2, 71, 1, 6.1),
    Sketcher.Constraint("DistanceY", 5, 1, 5, 2, 6.8),
    Sketcher.Constraint("DistanceY", 10, 2, 10, 1, 2.5),
    Sketcher.Constraint("DistanceY", 24, 1, 24, 2, 11.8),
    Sketcher.Constraint("DistanceY", 62, 1, 62, 2, 3.6),
    Sketcher.Constraint("DistanceY", 70, 2, 70, 1, 8.6),
    Sketcher.Constraint("DistanceX", 0, 1, 0, 2, 17.75),
    Sketcher.Constraint("DistanceY", 13, 1, 13, 2, 9.15),
    Sketcher.Constraint("Radius", 73, 7.513321),
    Sketcher.Constraint("Radius", 64, 6.236986),
    Sketcher.Constraint("DistanceX", 30, 1, 30, 2, 8.037258),
    Sketcher.Constraint("DistanceY", 19, 2, 19, 1, 5.237258),
    Sketcher.Constraint("DistanceY", 16, 1, 16, 2, 4.911522),
    Sketcher.Constraint("DistanceX", 35, 3, -1, 1, 13.806041),
    Sketcher.Constraint("DistanceY", 1, 2, -1, 1, 13.50717),
    Sketcher.Constraint("DistanceY", 74, 2, -1, 1, 6.820639),
    Sketcher.Constraint("DistanceX", -1, 1, 73, 2, 4.831217),
])
sketch1.setExpression("Constraints[214]", "Params.sketch1_radius")
sketch1.setExpression("Constraints[215]", "Params.sketch1_radius2")
sketch1.setExpression("Constraints[216]", "Params.sketch1_width")
sketch1.setExpression("Constraints[218]", "Params.sketch1_width2")
sketch1.setExpression("Constraints[219]", "Params.sketch1_width3")
pad1 = body.newObject("PartDesign::Pad", "Pad")
pad1.Profile = sketch1
pad1.setExpression("Length", "Params.pad1_length")

doc.recompute()
